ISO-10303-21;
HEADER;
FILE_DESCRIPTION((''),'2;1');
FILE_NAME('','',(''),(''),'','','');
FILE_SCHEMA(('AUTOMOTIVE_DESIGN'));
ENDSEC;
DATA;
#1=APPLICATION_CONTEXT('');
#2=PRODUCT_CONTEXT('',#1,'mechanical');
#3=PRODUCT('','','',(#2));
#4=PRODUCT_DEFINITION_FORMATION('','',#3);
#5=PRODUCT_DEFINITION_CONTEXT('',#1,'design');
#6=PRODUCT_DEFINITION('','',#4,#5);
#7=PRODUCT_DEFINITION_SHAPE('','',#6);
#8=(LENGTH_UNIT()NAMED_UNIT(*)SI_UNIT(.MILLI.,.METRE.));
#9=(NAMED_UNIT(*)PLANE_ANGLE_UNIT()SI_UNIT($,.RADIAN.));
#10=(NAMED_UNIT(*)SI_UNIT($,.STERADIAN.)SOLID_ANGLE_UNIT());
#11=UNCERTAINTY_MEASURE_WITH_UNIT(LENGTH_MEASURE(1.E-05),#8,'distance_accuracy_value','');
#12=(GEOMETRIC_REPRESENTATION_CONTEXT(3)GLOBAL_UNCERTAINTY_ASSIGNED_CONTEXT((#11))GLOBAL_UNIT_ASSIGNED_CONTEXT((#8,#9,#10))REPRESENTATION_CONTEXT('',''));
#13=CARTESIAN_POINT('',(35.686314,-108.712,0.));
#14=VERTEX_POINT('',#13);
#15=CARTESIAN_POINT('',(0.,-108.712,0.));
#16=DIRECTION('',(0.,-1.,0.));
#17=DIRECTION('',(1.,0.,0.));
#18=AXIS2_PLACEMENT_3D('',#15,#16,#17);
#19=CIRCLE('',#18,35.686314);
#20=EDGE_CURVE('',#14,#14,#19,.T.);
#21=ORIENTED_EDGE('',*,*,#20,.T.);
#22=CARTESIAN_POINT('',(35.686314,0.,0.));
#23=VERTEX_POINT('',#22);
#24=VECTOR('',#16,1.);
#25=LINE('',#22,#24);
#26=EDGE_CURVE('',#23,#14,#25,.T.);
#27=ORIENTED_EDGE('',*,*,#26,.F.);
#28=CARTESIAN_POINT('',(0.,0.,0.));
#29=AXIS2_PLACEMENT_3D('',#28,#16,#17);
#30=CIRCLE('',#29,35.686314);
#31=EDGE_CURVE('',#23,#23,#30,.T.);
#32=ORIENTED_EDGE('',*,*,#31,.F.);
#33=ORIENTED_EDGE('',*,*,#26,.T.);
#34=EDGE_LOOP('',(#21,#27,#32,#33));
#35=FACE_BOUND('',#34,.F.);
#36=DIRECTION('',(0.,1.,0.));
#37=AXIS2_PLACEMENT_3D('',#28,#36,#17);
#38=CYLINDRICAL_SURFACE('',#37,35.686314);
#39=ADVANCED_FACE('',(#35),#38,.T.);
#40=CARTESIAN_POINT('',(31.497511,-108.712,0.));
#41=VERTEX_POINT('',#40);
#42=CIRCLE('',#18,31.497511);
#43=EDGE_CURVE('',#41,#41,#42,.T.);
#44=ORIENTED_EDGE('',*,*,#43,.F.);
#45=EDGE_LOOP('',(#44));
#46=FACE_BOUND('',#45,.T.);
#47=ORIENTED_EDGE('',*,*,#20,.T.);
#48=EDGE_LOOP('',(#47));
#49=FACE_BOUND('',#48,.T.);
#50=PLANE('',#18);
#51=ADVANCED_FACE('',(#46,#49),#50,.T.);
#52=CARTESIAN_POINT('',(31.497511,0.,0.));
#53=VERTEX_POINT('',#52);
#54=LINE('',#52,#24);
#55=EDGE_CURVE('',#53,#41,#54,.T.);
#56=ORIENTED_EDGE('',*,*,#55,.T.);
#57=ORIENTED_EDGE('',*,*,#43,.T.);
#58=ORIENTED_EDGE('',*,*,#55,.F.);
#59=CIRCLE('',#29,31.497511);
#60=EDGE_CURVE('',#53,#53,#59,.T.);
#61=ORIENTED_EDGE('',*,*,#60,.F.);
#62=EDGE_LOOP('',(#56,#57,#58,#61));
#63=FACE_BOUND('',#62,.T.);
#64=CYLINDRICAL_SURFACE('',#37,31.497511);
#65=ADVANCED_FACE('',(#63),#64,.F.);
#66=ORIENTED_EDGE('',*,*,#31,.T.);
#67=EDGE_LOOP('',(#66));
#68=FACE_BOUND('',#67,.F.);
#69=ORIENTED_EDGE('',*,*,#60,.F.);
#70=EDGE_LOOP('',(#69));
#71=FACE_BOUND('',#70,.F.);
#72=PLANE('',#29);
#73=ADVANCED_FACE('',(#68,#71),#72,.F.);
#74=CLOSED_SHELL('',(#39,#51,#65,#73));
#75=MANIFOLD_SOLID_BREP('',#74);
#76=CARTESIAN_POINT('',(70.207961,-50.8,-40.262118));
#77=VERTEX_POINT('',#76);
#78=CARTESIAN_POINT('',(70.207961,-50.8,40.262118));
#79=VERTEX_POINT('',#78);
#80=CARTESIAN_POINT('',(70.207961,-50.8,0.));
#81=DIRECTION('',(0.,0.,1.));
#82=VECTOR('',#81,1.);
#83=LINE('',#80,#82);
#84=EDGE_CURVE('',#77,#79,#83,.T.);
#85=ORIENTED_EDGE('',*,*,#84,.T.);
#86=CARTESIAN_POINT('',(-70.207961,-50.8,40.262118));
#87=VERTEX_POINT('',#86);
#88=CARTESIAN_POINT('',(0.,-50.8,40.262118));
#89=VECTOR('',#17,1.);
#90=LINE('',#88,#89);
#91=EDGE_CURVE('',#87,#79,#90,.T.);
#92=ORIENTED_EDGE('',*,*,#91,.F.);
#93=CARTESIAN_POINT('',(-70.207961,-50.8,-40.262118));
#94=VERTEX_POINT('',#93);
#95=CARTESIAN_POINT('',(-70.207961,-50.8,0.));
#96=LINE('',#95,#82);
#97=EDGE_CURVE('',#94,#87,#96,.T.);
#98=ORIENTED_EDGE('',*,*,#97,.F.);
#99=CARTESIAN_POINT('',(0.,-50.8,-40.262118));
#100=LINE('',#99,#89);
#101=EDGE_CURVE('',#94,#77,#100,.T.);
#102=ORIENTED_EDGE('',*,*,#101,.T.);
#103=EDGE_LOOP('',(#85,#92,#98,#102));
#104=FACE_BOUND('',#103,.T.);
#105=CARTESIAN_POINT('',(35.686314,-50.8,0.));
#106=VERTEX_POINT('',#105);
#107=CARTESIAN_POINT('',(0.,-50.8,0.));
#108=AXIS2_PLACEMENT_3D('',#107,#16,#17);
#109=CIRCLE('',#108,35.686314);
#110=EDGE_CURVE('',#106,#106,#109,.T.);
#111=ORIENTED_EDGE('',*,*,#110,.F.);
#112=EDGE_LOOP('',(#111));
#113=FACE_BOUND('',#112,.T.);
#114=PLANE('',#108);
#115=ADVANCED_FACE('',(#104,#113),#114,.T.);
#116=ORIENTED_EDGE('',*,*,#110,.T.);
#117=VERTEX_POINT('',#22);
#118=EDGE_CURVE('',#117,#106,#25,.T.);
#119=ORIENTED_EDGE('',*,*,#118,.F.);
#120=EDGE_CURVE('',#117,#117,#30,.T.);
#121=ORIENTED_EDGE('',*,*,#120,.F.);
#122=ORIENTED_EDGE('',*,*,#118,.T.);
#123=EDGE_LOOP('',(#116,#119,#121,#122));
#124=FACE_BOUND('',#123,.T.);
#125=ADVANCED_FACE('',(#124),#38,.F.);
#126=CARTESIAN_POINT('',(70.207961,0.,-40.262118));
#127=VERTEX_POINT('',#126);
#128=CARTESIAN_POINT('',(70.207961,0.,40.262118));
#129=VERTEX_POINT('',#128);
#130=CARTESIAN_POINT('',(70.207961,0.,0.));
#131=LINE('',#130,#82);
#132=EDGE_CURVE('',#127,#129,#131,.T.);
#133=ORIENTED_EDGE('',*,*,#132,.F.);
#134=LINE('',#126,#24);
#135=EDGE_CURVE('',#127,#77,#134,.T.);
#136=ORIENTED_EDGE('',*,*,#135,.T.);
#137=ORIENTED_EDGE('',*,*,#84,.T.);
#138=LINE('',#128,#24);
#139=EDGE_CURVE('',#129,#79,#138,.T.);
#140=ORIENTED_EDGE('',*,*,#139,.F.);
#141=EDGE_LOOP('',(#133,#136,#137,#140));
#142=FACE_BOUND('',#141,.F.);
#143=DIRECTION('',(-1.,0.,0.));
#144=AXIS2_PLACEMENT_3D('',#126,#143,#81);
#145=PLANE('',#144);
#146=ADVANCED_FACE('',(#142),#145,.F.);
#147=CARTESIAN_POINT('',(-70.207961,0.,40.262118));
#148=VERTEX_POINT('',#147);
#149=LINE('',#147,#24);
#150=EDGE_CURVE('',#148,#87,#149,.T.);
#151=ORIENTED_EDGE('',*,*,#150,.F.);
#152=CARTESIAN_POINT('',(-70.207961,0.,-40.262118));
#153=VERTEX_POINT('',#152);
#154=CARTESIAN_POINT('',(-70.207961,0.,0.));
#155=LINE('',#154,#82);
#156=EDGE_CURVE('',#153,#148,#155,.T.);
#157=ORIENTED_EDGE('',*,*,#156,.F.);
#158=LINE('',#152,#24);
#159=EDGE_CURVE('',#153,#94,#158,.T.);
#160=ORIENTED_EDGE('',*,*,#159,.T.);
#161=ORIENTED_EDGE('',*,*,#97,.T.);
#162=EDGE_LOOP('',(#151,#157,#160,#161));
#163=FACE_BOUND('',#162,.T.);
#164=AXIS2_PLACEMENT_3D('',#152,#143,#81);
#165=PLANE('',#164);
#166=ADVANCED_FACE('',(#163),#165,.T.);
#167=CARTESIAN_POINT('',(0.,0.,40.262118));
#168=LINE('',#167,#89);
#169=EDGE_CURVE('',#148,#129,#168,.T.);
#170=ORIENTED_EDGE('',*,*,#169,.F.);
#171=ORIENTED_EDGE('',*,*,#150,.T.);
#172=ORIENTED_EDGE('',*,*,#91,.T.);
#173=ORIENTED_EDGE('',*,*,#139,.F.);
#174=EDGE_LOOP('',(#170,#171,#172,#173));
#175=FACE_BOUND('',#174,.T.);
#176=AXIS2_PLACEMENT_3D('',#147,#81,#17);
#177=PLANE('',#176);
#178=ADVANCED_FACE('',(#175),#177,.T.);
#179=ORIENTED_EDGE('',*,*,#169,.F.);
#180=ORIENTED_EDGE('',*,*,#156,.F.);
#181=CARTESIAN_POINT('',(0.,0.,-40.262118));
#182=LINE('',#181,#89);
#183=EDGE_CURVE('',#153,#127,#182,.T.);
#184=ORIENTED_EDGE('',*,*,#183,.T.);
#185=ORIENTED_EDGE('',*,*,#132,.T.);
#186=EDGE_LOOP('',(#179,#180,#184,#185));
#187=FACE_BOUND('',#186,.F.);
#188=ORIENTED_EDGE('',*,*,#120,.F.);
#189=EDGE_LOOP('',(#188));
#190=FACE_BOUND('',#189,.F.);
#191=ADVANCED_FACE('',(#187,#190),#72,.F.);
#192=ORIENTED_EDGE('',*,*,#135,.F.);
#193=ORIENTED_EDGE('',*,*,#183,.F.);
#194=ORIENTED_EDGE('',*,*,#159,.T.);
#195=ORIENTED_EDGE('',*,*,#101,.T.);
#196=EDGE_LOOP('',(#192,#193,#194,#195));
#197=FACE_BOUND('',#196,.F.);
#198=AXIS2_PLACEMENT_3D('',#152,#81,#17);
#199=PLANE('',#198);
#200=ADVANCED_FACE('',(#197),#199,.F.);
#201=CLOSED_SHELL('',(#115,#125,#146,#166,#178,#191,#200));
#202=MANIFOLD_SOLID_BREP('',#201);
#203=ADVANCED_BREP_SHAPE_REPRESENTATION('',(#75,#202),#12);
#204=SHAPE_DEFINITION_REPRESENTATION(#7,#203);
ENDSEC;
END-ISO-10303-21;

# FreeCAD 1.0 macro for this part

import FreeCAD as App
import Part
import Sketcher
from FreeCAD import Vector
Q = App.Units.Quantity

doc = App.newDocument("Part")
body = doc.addObject("PartDesign::Body", "Body")

sketch1 = body.newObject("Sketcher::SketchObject", "Sketch")
sketch1.AttachmentSupport = (doc.getObject("XZ_Plane"), [""])
sketch1.MapMode = "FlatFace"
sketch1.addGeometry([
    Part.LineSegment(Vector(-70, 40, 0), Vector(-70, -40, 0)),
    Part.LineSegment(Vector(-70, -40, 0), Vector(70, -40, 0)),
    Part.LineSegment(Vector(70, -40, 0), Vector(70, 40, 0)),
    Part.LineSegment(Vector(70, 40, 0), Vector(-70, 40, 0)),
    Part.Circle(Vector(0, 0, 0), Vector(0, 0, 1), 36),
], False)
sketch1.addConstraint([
    Sketcher.Constraint("Coincident", 0, 2, 1, 1),
    Sketcher.Constraint("Coincident", 1, 2, 2, 1),
    Sketcher.Constraint("Coincident", 2, 2, 3, 1),
    Sketcher.Constraint("Coincident", 3, 2, 0, 1),
    Sketcher.Constraint("Vertical", 0),
    Sketcher.Constraint("Horizontal", 1),
    Sketcher.Constraint("Vertical", 2),
    Sketcher.Constraint("Horizontal", 3),
    Sketcher.Constraint("Coincident", 4, 3, -1, 1),
    Sketcher.Constraint("Symmetric", 0, 2, 2, 2, -1, 1),
    Sketcher.Constraint("Diameter", 4, Q("71.372628 mm")),
    Sketcher.Constraint("DistanceX", 1, 1, 1, 2, Q("140.415922 mm")),
    Sketcher.Constraint("DistanceY", 0, 2, 0, 1, Q("80.524236 mm")),
])
pad1 = body.newObject("PartDesign::Pad", "Pad")
pad1.Profile = sketch1
pad1.Length = Q("2 in")
body2 = doc.addObject("PartDesign::Body", "Body001")

sketch2 = body2.newObject("Sketcher::SketchObject", "Sketch001")
sketch2.AttachmentSupport = (doc.getObject("XZ_Plane001"), [""])
sketch2.MapMode = "FlatFace"
sketch2.addGeometry([
    Part.Circle(Vector(0, 0, 0), Vector(0, 0, 1), 36),
    Part.Circle(Vector(0, 0, 0), Vector(0, 0, 1), 31),
], False)
sketch2.addConstraint([
    Sketcher.Constraint("Coincident", 0, 3, -1, 1),
    Sketcher.Constraint("Coincident", 1, 3, -1, 1),
    Sketcher.Constraint("Diameter", 0, Q("71.372628 mm")),
    Sketcher.Constraint("Diameter", 1, Q("62.995022 mm")),
])
pad2 = body2.newObject("PartDesign::Pad", "Pad001")
pad2.Profile = sketch2
pad2.Length = Q("4.28 in")

doc.recompute()
